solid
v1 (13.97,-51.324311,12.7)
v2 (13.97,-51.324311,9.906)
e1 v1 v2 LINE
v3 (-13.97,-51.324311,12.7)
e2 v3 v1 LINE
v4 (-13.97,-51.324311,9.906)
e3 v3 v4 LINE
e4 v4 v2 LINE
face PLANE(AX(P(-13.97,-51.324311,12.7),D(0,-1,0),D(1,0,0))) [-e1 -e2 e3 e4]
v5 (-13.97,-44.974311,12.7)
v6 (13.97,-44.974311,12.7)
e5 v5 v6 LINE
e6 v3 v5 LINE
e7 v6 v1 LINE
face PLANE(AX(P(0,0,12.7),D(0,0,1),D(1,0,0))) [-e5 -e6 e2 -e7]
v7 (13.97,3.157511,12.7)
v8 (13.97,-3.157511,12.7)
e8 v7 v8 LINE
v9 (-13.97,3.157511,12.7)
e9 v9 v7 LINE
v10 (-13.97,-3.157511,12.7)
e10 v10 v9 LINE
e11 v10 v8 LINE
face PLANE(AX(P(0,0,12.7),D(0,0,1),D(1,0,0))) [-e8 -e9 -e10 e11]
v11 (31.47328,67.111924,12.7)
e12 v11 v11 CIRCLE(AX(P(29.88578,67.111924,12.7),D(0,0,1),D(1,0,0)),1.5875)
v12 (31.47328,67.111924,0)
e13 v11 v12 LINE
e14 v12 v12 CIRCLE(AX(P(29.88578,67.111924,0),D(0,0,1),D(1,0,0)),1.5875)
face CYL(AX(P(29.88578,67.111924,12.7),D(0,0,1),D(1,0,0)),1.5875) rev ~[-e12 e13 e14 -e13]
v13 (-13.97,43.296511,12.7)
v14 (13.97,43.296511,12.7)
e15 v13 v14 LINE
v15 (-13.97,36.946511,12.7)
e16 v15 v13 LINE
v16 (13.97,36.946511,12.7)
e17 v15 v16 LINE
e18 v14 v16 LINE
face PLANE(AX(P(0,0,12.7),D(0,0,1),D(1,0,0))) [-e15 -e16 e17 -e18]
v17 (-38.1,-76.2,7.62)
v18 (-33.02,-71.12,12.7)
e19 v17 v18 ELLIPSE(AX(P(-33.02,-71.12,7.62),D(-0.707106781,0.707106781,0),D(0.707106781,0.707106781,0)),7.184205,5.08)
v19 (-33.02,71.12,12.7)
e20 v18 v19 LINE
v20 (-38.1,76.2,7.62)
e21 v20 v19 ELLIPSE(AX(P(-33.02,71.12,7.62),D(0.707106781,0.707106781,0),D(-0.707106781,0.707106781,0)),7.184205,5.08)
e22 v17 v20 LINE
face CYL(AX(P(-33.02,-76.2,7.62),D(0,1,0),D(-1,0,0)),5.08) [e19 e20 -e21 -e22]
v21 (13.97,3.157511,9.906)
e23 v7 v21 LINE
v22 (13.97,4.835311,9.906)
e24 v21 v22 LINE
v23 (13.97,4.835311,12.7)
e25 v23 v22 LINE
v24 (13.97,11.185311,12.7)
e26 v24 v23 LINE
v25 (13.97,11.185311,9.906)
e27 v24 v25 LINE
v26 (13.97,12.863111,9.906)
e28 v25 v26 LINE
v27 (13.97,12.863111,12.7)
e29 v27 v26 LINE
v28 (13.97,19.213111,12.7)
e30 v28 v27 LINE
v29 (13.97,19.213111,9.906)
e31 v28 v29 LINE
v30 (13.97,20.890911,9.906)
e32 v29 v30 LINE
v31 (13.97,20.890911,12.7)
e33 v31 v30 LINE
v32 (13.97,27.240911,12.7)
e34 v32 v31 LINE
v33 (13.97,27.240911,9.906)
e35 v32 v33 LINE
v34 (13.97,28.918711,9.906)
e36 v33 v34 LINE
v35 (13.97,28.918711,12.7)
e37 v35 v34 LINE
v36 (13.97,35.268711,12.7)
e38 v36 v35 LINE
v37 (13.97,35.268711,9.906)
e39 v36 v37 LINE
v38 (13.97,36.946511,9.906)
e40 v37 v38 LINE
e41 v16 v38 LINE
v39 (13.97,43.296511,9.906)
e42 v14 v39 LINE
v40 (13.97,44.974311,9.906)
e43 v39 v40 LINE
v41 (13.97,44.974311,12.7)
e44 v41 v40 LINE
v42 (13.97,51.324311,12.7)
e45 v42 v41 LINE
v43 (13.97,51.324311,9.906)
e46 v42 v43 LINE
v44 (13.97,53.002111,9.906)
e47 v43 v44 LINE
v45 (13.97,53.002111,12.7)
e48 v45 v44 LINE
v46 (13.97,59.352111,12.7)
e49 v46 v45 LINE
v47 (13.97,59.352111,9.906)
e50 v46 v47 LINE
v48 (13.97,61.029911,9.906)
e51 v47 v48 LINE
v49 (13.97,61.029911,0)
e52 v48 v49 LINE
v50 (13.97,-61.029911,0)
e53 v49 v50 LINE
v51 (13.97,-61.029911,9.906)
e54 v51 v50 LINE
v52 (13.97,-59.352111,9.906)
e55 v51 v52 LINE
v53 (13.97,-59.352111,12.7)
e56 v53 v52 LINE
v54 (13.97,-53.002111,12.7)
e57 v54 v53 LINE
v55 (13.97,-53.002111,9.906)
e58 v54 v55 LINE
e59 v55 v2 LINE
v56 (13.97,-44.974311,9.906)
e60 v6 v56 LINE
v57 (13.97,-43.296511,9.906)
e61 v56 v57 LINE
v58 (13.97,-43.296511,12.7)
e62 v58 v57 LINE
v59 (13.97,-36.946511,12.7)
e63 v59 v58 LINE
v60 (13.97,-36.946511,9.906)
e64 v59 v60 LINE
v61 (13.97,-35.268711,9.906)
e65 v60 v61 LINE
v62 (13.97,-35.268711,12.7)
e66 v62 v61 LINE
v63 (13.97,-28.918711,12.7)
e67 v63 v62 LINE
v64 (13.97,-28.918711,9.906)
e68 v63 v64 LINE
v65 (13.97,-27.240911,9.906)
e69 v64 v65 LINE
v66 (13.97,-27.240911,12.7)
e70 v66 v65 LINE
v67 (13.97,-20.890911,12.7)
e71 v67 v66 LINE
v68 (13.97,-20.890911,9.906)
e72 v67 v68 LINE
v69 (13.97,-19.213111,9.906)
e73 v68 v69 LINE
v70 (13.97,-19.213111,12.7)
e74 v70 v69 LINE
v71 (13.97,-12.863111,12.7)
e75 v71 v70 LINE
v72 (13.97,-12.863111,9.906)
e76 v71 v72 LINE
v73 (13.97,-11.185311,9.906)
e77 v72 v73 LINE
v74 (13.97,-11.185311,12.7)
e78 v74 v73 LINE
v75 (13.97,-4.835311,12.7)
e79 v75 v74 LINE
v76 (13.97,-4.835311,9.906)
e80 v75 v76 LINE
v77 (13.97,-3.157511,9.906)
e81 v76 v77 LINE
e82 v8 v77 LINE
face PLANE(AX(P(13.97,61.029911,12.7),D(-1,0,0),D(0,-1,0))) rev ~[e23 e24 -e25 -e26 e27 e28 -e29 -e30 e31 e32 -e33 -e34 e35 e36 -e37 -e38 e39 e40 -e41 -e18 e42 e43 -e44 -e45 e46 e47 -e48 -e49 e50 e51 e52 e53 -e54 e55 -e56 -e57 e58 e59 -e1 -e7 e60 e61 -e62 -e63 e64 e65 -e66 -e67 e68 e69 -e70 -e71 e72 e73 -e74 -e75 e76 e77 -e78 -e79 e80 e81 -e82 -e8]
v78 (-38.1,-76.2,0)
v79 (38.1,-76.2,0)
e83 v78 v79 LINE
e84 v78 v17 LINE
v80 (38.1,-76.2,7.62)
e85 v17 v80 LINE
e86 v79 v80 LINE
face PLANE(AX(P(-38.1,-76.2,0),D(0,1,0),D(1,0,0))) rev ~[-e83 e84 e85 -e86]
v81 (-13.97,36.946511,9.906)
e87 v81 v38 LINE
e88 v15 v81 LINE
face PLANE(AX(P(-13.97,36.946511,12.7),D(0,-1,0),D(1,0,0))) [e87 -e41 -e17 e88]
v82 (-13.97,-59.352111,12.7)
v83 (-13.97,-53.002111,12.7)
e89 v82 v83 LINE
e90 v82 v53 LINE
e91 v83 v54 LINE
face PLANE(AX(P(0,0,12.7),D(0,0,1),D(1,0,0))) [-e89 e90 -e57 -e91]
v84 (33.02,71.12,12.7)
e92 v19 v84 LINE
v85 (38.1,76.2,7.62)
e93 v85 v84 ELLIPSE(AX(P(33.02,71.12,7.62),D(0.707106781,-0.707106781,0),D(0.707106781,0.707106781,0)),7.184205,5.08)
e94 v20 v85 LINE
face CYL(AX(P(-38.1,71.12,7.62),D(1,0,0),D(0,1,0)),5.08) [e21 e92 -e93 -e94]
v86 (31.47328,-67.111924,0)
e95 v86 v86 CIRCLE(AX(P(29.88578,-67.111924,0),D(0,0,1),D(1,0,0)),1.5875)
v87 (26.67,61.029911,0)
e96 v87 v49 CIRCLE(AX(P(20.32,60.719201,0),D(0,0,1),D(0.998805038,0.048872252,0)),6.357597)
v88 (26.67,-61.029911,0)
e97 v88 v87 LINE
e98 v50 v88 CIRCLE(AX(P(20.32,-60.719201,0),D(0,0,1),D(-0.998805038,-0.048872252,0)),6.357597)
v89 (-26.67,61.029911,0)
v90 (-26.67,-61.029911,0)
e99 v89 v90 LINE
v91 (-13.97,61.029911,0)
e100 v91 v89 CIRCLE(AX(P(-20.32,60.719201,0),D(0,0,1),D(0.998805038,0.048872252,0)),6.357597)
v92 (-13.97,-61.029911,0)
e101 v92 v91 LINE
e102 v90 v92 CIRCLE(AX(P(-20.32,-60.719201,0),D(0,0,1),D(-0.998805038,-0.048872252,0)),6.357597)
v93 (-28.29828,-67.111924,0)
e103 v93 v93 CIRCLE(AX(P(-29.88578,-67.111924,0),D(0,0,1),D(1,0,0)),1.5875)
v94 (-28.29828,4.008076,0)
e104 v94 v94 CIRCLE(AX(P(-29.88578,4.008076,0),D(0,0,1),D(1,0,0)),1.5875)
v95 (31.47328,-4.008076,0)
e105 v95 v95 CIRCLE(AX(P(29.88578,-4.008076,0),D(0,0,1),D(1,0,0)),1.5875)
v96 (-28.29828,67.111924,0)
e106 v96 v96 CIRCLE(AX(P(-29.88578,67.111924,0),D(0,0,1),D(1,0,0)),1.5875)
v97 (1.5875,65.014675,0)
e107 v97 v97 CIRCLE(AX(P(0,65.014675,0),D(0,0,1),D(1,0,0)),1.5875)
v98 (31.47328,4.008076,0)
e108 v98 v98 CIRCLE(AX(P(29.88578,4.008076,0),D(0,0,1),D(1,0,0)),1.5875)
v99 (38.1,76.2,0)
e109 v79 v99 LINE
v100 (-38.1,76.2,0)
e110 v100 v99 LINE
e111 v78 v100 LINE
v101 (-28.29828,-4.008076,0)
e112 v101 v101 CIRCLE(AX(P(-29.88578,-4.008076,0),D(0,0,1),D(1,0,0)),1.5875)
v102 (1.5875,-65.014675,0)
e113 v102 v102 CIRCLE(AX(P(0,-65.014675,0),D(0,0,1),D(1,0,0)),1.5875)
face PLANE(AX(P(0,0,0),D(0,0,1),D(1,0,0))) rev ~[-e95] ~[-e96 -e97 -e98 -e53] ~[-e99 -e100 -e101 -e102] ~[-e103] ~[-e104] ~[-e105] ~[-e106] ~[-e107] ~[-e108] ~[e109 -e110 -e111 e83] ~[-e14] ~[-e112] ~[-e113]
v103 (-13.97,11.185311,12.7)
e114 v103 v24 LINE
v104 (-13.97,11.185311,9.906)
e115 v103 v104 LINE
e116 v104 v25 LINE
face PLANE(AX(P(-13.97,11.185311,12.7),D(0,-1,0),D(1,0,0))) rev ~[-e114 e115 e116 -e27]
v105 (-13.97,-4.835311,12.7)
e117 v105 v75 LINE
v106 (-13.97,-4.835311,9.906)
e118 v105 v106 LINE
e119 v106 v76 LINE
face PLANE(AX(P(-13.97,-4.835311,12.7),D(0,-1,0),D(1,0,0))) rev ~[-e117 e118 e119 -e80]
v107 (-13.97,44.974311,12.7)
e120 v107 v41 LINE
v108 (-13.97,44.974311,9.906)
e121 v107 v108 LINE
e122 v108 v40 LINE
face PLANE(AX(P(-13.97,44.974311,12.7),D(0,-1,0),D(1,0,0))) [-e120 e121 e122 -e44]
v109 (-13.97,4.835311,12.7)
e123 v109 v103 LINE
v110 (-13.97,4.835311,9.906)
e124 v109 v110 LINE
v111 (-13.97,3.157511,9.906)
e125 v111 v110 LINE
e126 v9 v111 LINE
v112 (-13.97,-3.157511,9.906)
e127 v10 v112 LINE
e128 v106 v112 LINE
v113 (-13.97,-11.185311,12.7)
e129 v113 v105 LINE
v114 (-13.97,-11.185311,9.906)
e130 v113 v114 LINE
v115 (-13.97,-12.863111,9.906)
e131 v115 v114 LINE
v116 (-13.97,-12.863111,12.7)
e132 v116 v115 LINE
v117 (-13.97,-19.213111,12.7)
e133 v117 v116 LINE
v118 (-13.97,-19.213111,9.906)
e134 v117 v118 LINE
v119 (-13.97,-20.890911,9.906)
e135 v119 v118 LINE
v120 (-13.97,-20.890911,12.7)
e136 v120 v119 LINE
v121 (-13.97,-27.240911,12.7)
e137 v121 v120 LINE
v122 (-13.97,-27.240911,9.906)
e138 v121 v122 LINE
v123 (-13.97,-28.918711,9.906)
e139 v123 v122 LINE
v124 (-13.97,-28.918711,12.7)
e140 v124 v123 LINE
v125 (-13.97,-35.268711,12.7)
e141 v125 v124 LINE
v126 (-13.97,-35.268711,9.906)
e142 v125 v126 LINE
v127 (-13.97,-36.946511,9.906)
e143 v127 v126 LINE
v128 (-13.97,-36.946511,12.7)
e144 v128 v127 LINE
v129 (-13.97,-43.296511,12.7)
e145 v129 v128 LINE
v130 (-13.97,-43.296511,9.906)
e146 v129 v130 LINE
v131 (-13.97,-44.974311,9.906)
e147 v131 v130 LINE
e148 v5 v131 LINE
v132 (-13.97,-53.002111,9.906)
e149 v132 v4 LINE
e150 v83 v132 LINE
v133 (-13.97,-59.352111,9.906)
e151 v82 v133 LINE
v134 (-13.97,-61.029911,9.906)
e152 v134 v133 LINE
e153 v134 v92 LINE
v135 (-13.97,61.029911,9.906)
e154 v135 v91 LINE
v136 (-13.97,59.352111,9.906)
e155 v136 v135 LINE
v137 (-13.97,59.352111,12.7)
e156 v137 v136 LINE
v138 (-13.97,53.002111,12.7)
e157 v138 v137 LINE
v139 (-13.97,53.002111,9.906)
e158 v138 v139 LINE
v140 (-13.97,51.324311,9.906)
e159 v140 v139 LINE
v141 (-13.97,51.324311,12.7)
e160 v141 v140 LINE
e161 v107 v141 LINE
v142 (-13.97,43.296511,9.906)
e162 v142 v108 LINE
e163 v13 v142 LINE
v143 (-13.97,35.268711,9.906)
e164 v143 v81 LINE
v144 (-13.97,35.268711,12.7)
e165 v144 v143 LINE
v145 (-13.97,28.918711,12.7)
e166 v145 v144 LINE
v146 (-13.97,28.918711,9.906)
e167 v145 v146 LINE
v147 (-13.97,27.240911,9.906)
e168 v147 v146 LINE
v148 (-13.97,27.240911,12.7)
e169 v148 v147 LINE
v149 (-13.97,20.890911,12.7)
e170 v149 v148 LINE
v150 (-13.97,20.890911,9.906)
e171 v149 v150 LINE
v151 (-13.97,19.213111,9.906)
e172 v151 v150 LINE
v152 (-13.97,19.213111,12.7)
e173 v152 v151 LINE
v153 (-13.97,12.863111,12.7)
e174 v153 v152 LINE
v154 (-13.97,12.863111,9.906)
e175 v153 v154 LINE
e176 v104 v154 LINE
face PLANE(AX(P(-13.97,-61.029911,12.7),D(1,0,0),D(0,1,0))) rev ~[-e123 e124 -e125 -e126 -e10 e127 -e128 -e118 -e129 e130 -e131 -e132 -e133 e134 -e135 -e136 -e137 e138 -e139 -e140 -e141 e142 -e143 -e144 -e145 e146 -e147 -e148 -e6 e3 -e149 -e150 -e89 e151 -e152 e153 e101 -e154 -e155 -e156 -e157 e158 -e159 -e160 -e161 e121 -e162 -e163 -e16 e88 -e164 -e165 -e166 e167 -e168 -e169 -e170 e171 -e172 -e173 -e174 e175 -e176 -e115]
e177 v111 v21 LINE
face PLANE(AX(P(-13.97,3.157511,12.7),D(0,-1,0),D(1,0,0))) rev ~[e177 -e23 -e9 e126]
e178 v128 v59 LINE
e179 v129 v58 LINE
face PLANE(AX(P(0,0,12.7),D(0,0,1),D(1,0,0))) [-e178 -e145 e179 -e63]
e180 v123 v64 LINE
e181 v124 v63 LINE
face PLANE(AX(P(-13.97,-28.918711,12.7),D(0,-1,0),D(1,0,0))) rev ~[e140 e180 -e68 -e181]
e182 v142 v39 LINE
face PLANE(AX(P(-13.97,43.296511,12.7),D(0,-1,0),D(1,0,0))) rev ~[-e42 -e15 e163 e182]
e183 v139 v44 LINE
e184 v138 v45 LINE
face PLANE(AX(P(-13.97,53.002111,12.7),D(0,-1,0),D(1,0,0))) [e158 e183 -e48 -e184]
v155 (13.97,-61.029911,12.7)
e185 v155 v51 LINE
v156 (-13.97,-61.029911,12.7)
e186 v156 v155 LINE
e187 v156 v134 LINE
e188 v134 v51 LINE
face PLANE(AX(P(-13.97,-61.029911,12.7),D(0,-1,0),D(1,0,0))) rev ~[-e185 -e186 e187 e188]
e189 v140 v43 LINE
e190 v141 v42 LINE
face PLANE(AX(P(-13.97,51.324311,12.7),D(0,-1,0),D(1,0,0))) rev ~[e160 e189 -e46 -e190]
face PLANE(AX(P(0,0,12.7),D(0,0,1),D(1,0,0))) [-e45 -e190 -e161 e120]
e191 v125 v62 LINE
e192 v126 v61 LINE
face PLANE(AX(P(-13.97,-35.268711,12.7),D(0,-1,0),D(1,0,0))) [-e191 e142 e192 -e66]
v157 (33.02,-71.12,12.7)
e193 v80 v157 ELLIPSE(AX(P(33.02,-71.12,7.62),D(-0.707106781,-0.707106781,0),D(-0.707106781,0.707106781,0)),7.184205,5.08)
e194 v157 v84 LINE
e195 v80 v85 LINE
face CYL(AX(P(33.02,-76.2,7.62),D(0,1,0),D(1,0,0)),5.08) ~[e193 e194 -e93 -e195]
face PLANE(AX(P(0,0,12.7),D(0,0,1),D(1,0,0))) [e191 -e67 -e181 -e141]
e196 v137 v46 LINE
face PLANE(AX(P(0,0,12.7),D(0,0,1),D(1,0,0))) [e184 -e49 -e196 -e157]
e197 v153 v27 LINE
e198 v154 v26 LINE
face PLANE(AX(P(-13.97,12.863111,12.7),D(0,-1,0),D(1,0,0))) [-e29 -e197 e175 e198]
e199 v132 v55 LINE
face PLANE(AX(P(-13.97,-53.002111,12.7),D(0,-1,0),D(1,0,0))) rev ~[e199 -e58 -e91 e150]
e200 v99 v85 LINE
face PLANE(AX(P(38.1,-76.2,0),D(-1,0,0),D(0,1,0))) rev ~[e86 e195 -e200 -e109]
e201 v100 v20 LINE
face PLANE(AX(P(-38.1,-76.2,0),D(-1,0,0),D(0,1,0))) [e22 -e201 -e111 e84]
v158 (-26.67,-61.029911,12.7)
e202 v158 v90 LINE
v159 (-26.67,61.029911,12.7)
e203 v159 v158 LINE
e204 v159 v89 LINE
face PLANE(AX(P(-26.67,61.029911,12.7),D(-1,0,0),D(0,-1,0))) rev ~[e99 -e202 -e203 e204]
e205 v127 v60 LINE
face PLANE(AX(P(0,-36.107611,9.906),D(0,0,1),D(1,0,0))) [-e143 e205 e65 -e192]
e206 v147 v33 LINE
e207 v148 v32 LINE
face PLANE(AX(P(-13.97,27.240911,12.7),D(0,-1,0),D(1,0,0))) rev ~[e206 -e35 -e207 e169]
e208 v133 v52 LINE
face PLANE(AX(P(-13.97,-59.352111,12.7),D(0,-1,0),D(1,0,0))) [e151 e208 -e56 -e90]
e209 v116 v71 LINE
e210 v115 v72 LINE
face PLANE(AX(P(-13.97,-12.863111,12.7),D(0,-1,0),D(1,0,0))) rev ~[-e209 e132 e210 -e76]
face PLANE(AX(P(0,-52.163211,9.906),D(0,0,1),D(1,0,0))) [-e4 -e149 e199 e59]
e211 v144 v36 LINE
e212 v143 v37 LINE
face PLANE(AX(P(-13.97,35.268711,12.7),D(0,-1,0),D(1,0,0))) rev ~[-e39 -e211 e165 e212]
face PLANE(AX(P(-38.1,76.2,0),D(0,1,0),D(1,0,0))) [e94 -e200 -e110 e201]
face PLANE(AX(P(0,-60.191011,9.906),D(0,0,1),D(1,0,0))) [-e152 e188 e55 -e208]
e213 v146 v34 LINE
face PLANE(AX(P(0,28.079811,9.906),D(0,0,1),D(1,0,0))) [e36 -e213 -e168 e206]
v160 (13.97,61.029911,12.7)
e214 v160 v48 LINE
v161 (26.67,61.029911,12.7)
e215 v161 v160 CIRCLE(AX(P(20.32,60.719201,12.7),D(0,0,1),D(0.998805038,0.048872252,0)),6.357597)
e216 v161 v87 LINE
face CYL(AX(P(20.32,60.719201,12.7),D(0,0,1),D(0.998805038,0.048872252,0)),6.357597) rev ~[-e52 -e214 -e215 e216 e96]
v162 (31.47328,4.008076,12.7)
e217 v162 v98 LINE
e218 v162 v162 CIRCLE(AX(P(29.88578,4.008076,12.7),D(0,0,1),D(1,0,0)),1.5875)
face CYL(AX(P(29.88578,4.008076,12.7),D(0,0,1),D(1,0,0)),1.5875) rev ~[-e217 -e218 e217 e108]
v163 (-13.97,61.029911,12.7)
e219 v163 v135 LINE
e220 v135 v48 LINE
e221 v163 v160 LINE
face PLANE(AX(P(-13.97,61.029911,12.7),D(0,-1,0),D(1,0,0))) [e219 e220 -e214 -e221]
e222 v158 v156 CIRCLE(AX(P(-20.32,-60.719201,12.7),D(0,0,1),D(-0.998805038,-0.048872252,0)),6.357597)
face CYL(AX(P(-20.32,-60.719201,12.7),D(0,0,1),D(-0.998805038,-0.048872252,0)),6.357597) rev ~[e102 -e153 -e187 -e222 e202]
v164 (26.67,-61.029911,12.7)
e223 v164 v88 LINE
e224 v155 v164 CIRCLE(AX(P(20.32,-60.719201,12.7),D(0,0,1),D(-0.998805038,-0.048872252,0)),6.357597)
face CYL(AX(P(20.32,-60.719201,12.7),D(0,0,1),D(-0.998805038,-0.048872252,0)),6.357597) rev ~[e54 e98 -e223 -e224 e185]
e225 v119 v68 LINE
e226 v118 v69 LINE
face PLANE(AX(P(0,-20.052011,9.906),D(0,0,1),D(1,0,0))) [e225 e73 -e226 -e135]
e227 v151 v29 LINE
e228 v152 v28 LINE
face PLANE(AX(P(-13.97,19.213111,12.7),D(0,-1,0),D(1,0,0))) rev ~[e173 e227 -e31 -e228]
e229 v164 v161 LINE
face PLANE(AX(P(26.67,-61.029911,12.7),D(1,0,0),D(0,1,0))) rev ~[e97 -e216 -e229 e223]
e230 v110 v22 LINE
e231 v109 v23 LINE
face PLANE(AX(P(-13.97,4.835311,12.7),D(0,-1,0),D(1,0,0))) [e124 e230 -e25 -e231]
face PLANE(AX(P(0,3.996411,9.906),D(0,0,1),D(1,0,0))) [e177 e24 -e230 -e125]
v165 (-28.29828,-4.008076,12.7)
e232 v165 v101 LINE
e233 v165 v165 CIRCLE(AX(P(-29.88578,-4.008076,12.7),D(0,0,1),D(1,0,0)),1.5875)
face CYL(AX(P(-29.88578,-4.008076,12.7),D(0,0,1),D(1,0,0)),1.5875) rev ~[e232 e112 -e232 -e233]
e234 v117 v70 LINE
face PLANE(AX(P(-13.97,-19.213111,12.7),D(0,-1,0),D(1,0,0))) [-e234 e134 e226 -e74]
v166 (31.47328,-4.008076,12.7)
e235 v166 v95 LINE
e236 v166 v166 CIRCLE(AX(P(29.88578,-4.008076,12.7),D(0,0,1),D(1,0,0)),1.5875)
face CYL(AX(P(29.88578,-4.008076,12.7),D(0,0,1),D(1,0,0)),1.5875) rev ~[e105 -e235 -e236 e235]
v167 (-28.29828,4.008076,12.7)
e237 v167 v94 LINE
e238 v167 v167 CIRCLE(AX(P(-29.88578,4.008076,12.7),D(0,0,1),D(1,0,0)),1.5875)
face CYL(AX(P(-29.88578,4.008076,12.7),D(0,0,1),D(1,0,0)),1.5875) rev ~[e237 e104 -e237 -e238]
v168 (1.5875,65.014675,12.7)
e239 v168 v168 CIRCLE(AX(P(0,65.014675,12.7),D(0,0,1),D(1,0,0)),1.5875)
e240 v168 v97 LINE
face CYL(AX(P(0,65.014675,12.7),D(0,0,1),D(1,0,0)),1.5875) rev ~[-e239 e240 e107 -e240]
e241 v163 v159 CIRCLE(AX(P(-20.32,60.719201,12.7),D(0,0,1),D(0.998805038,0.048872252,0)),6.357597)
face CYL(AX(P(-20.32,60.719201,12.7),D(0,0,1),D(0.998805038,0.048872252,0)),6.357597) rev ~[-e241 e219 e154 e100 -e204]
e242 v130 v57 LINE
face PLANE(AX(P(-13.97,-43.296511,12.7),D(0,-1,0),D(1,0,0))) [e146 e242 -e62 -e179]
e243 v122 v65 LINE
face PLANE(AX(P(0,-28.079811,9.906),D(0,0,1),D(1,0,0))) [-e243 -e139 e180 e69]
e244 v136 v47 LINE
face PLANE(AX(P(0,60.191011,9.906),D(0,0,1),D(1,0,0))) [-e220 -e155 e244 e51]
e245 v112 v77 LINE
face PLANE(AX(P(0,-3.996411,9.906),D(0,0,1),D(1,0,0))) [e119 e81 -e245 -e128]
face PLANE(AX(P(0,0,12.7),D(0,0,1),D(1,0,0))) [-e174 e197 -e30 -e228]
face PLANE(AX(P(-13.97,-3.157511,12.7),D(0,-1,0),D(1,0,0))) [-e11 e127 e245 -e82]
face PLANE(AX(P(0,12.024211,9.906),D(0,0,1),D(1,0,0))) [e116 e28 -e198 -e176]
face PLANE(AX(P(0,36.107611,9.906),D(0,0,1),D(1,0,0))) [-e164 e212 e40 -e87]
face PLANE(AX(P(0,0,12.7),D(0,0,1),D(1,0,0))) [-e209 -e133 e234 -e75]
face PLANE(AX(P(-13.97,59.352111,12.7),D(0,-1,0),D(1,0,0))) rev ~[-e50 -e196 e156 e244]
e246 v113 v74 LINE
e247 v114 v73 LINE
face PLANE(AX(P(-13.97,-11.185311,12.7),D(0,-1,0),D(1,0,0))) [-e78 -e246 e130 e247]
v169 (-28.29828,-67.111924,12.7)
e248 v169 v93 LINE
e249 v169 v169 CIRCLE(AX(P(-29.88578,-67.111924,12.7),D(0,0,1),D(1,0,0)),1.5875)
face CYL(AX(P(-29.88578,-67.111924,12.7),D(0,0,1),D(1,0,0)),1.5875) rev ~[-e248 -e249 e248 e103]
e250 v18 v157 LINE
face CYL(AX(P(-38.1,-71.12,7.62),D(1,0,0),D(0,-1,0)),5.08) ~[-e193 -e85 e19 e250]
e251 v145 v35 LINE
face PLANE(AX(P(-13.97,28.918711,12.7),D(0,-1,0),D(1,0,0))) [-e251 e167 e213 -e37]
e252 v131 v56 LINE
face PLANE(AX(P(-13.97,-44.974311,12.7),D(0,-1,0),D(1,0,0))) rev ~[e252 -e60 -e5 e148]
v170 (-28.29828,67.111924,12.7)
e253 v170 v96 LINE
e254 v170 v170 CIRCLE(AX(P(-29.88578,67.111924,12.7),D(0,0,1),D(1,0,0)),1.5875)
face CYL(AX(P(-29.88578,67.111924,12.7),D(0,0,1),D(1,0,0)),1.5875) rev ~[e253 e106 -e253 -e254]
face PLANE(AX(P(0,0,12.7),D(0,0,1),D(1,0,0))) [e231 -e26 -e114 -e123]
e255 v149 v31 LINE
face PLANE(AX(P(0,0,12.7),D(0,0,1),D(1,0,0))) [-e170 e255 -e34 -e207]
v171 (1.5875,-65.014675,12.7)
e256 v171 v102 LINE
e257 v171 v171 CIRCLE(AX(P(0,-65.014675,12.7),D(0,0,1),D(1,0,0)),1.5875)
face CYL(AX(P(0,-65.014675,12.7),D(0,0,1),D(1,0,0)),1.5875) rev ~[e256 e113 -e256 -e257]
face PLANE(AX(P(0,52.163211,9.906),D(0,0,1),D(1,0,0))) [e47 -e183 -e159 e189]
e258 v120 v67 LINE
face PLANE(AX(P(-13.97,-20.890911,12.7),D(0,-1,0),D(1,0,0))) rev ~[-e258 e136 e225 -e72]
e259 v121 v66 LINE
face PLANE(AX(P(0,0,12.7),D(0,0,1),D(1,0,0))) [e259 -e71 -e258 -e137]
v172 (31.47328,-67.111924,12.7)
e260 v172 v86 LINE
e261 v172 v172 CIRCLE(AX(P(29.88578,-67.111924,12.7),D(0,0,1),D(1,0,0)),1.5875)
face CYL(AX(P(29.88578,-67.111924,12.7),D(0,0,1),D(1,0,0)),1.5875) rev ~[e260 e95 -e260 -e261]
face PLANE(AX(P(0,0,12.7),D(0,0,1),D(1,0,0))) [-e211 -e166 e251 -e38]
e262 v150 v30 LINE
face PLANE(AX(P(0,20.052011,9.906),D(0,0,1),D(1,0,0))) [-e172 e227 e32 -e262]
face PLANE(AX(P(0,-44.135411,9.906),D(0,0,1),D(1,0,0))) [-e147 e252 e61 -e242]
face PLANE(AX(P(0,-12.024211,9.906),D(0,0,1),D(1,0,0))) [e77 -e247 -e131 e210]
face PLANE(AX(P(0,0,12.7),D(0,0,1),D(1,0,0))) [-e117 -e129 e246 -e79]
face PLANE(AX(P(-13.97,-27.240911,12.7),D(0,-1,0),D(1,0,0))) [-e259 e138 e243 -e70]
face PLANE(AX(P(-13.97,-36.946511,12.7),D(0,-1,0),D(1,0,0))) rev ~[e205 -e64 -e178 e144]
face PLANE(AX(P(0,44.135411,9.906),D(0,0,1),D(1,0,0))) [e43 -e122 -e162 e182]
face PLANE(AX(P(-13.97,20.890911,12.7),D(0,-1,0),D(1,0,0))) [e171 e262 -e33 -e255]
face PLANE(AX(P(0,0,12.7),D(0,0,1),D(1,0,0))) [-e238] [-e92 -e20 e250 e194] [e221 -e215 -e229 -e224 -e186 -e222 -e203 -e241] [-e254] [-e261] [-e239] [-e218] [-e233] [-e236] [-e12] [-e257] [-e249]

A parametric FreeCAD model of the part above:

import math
import FreeCAD as App
import Part
import Sketcher
Q = App.Units.Quantity


def edges_at(feature, points):
    """Names of the edges that pass closest to the given points."""
    edges = feature.Shape.Edges
    near = lambda p: min(range(len(edges)), key=lambda i: edges[i].distToShape(Part.Vertex(*p))[0])
    return sorted({f"Edge{near(p) + 1}" for p in points})

doc = App.newDocument("Part")
body = doc.addObject("PartDesign::Body", "Body")

# Sketch on XY plane
sketch1 = doc.addObject("Sketcher::SketchObject", "Sketch")
body.addObject(sketch1)
sketch1.AttachmentSupport = (doc.XY_Plane, [""])
sketch1.MapMode = "FlatFace"
sketch1.addGeometry(Part.LineSegment(App.Vector(-38, 76, 0), App.Vector(-38, -76, 0)), False)
sketch1.addGeometry(Part.LineSegment(App.Vector(-38, -76, 0), App.Vector(38, -76, 0)), False)
sketch1.addGeometry(Part.LineSegment(App.Vector(38, -76, 0), App.Vector(38, 76, 0)), False)
sketch1.addGeometry(Part.LineSegment(App.Vector(38, 76, 0), App.Vector(-38, 76, 0)), False)
sketch1.addConstraint(Sketcher.Constraint("Coincident", 0, 2, 1, 1))
sketch1.addConstraint(Sketcher.Constraint("Coincident", 1, 2, 2, 1))
sketch1.addConstraint(Sketcher.Constraint("Coincident", 2, 2, 3, 1))
sketch1.addConstraint(Sketcher.Constraint("Coincident", 3, 2, 0, 1))
sketch1.addConstraint(Sketcher.Constraint("Vertical", 0))
sketch1.addConstraint(Sketcher.Constraint("Horizontal", 1))
sketch1.addConstraint(Sketcher.Constraint("Vertical", 2))
sketch1.addConstraint(Sketcher.Constraint("Horizontal", 3))
sketch1.addConstraint(Sketcher.Constraint("Symmetric", 0, 2, 2, 2, -1, 1))
sketch1.addConstraint(Sketcher.Constraint("DistanceX", 1, 1, 1, 2, Q("3 in")))
sketch1.addConstraint(Sketcher.Constraint("DistanceY", 0, 2, 0, 1, Q("6 in")))
pad1 = doc.addObject("PartDesign::Pad", "Pad")
body.addObject(pad1)
pad1.Profile = sketch1
pad1.Length = Q("0.5 in")
doc.recompute()

fillet = doc.addObject("PartDesign::Fillet", "Fillet")
body.addObject(fillet)
fillet.Base = (pad1, edges_at(pad1, [
    (-38.1, 0, 12.7),
    (0, 76.2, 12.7),
    (38.1, 0, 12.7),
    (0, -76.2, 12.7),
]))
fillet.Radius = Q("0.2 in")

# Sketch on XY plane
sketch2 = doc.addObject("Sketcher::SketchObject", "Sketch001")
body.addObject(sketch2)
sketch2.AttachmentSupport = (doc.XY_Plane, [""])
sketch2.MapMode = "FlatFace"
sketch2.AttachmentOffset = App.Placement(App.Vector(0, 0, 0.5 * 25.4), App.Rotation())
sketch2.addGeometry(Part.LineSegment(App.Vector(-14, -61, 0), App.Vector(-14, 61, 0)), False)
sketch2.addGeometry(Part.ArcOfCircle(Part.Circle(App.Vector(-20, 61, 0), App.Vector(0, 0, 1), 6), math.radians(3), math.radians(177)), False)
sketch2.addGeometry(Part.LineSegment(App.Vector(-27, 61, 0), App.Vector(-27, -61, 0)), False)
sketch2.addGeometry(Part.ArcOfCircle(Part.Circle(App.Vector(-20, -61, 0), App.Vector(0, 0, 1), 6), math.radians(-177), math.radians(-3)), False)
sketch2.addGeometry(Part.ArcOfCircle(Part.Circle(App.Vector(20, 61, 0), App.Vector(0, 0, 1), 6), math.radians(3), math.radians(177)), False)
sketch2.addGeometry(Part.LineSegment(App.Vector(14, 61, 0), App.Vector(14, -61, 0)), False)
sketch2.addGeometry(Part.ArcOfCircle(Part.Circle(App.Vector(20, -61, 0), App.Vector(0, 0, 1), 6), math.radians(-177), math.radians(-3)), False)
sketch2.addGeometry(Part.LineSegment(App.Vector(27, -61, 0), App.Vector(27, 61, 0)), False)
sketch2.addConstraint(Sketcher.Constraint("Coincident", 0, 2, 1, 1))
sketch2.addConstraint(Sketcher.Constraint("Coincident", 1, 2, 2, 1))
sketch2.addConstraint(Sketcher.Constraint("Coincident", 2, 2, 3, 1))
sketch2.addConstraint(Sketcher.Constraint("Coincident", 3, 2, 0, 1))
sketch2.addConstraint(Sketcher.Constraint("Coincident", 4, 2, 5, 1))
sketch2.addConstraint(Sketcher.Constraint("Coincident", 5, 2, 6, 1))
sketch2.addConstraint(Sketcher.Constraint("Coincident", 6, 2, 7, 1))
sketch2.addConstraint(Sketcher.Constraint("Coincident", 7, 2, 4, 1))
sketch2.addConstraint(Sketcher.Constraint("Vertical", 0))
sketch2.addConstraint(Sketcher.Constraint("Vertical", 2))
sketch2.addConstraint(Sketcher.Constraint("Vertical", 5))
sketch2.addConstraint(Sketcher.Constraint("Vertical", 7))
sketch2.addConstraint(Sketcher.Constraint("Equal", 1, 3))
sketch2.addConstraint(Sketcher.Constraint("Equal", 3, 4))
sketch2.addConstraint(Sketcher.Constraint("Equal", 4, 6))
sketch2.addConstraint(Sketcher.Constraint("Symmetric", 3, 3, 4, 3, -1, 1))
sketch2.addConstraint(Sketcher.Constraint("Symmetric", 1, 3, 6, 3, -1, 1))
sketch2.addConstraint(Sketcher.Constraint("Symmetric", 1, 3, 4, 3, -2))
sketch2.addConstraint(Sketcher.Constraint("Horizontal", 0, 2, 1, 2))
sketch2.addConstraint(Sketcher.Constraint("Horizontal", 1, 2, 4, 2))
sketch2.addConstraint(Sketcher.Constraint("Horizontal", 5, 2, 6, 2))
sketch2.addConstraint(Sketcher.Constraint("DistanceX", 1, 3, -1, 1, Q("0.8 in")))
sketch2.addConstraint(Sketcher.Constraint("DistanceX", 1, 2, 0, 2, Q("0.5 in")))
sketch2.addConstraint(Sketcher.Constraint("Radius", 1, Q("6.357597 mm")))
sketch2.addConstraint(Sketcher.Constraint("DistanceY", 0, 1, 0, 2, Q("122.059822 mm")))
pocket1 = doc.addObject("PartDesign::Pocket", "Pocket")
body.addObject(pocket1)
pocket1.Profile = sketch2
pocket1.Length = Q("1 in")

# Sketch on XY plane
sketch3 = doc.addObject("Sketcher::SketchObject", "Sketch002")
body.addObject(sketch3)
sketch3.AttachmentSupport = (doc.XY_Plane, [""])
sketch3.MapMode = "FlatFace"
sketch3.AttachmentOffset = App.Placement(App.Vector(0, 0, 0.5 * 25.4), App.Rotation())
sketch3.addGeometry(Part.Circle(App.Vector(0, 65, 0), App.Vector(0, 0, 1), 1.6), False)
sketch3.addGeometry(Part.Circle(App.Vector(0, -65, 0), App.Vector(0, 0, 1), 1.6), False)
sketch3.addGeometry(Part.Circle(App.Vector(-29.9, 67.1, 0), App.Vector(0, 0, 1), 1.6), False)
sketch3.addGeometry(Part.Circle(App.Vector(29.9, 67.1, 0), App.Vector(0, 0, 1), 1.6), False)
sketch3.addGeometry(Part.Circle(App.Vector(29.9, -67.1, 0), App.Vector(0, 0, 1), 1.6), False)
sketch3.addGeometry(Part.Circle(App.Vector(-29.9, -67.1, 0), App.Vector(0, 0, 1), 1.6), False)
sketch3.addGeometry(Part.Circle(App.Vector(-29.9, 4, 0), App.Vector(0, 0, 1), 1.6), False)
sketch3.addGeometry(Part.Circle(App.Vector(29.9, 4, 0), App.Vector(0, 0, 1), 1.6), False)
sketch3.addGeometry(Part.Circle(App.Vector(-29.9, -4, 0), App.Vector(0, 0, 1), 1.6), False)
sketch3.addGeometry(Part.Circle(App.Vector(29.9, -4, 0), App.Vector(0, 0, 1), 1.6), False)
sketch3.addConstraint(Sketcher.Constraint("Equal", 0, 1))
sketch3.addConstraint(Sketcher.Constraint("Equal", 1, 2))
sketch3.addConstraint(Sketcher.Constraint("Equal", 2, 3))
sketch3.addConstraint(Sketcher.Constraint("Equal", 3, 4))
sketch3.addConstraint(Sketcher.Constraint("Equal", 4, 5))
sketch3.addConstraint(Sketcher.Constraint("Equal", 5, 6))
sketch3.addConstraint(Sketcher.Constraint("Equal", 6, 7))
sketch3.addConstraint(Sketcher.Constraint("Equal", 7, 8))
sketch3.addConstraint(Sketcher.Constraint("Equal", 8, 9))
sketch3.addConstraint(Sketcher.Constraint("Symmetric", 0, 3, 1, 3, -1, 1))
sketch3.addConstraint(Sketcher.Constraint("Symmetric", 2, 3, 4, 3, -1, 1))
sketch3.addConstraint(Sketcher.Constraint("Symmetric", 3, 3, 5, 3, -1, 1))
sketch3.addConstraint(Sketcher.Constraint("Symmetric", 7, 3, 8, 3, -1, 1))
sketch3.addConstraint(Sketcher.Constraint("Symmetric", 6, 3, 9, 3, -1, 1))
sketch3.addConstraint(Sketcher.Constraint("Symmetric", 2, 3, 3, 3, -2))
sketch3.addConstraint(Sketcher.Constraint("Symmetric", 6, 3, 7, 3, -2))
sketch3.addConstraint(Sketcher.Constraint("PointOnObject", 0, 3, -2))
sketch3.addConstraint(Sketcher.Constraint("Vertical", 5, 3, 6, 3))
sketch3.addConstraint(Sketcher.Constraint("Diameter", 0, Q("0.125 in")))
sketch3.addConstraint(Sketcher.Constraint("DistanceY", 5, 3, 6, 3, Q("2.8 in")))
sketch3.addConstraint(Sketcher.Constraint("DistanceY", 1, 3, 2, 3, Q("132.126599 mm")))
sketch3.addConstraint(Sketcher.Constraint("DistanceX", 2, 3, -1, 1, Q("29.88578 mm")))
sketch3.addConstraint(Sketcher.Constraint("DistanceY", 1, 3, 0, 3, Q("130.02935 mm")))
pocket2 = doc.addObject("PartDesign::Pocket", "Pocket001")
body.addObject(pocket2)
pocket2.Profile = sketch3
pocket2.Length = Q("1 in")

# Sketch on XY plane
sketch4 = doc.addObject("Sketcher::SketchObject", "Sketch003")
body.addObject(sketch4)
sketch4.AttachmentSupport = (doc.XY_Plane, [""])
sketch4.MapMode = "FlatFace"
sketch4.AttachmentOffset = App.Placement(App.Vector(0, 0, 0.5 * 25.4), App.Rotation())
sketch4.addGeometry(Part.LineSegment(App.Vector(-14, 61, 0), App.Vector(-14, 59.4, 0)), False)
sketch4.addGeometry(Part.LineSegment(App.Vector(-14, 59.4, 0), App.Vector(14, 59.4, 0)), False)
sketch4.addGeometry(Part.LineSegment(App.Vector(14, 59.4, 0), App.Vector(14, 61, 0)), False)
sketch4.addGeometry(Part.LineSegment(App.Vector(14, 61, 0), App.Vector(-14, 61, 0)), False)
sketch4.addGeometry(Part.LineSegment(App.Vector(-14, 53, 0), App.Vector(-14, 51.3, 0)), False)
sketch4.addGeometry(Part.LineSegment(App.Vector(-14, 51.3, 0), App.Vector(14, 51.3, 0)), False)
sketch4.addGeometry(Part.LineSegment(App.Vector(14, 51.3, 0), App.Vector(14, 53, 0)), False)
sketch4.addGeometry(Part.LineSegment(App.Vector(14, 53, 0), App.Vector(-14, 53, 0)), False)
sketch4.addGeometry(Part.LineSegment(App.Vector(-14, 45, 0), App.Vector(-14, 43.3, 0)), False)
sketch4.addGeometry(Part.LineSegment(App.Vector(-14, 43.3, 0), App.Vector(14, 43.3, 0)), False)
sketch4.addGeometry(Part.LineSegment(App.Vector(14, 43.3, 0), App.Vector(14, 45, 0)), False)
sketch4.addGeometry(Part.LineSegment(App.Vector(14, 45, 0), App.Vector(-14, 45, 0)), False)
sketch4.addGeometry(Part.LineSegment(App.Vector(-14, 36.9, 0), App.Vector(-14, 35.3, 0)), False)
sketch4.addGeometry(Part.LineSegment(App.Vector(-14, 35.3, 0), App.Vector(14, 35.3, 0)), False)
sketch4.addGeometry(Part.LineSegment(App.Vector(14, 35.3, 0), App.Vector(14, 36.9, 0)), False)
sketch4.addGeometry(Part.LineSegment(App.Vector(14, 36.9, 0), App.Vector(-14, 36.9, 0)), False)
sketch4.addGeometry(Part.LineSegment(App.Vector(-14, 28.9, 0), App.Vector(-14, 27.2, 0)), False)
sketch4.addGeometry(Part.LineSegment(App.Vector(-14, 27.2, 0), App.Vector(14, 27.2, 0)), False)
sketch4.addGeometry(Part.LineSegment(App.Vector(14, 27.2, 0), App.Vector(14, 28.9, 0)), False)
sketch4.addGeometry(Part.LineSegment(App.Vector(14, 28.9, 0), App.Vector(-14, 28.9, 0)), False)
sketch4.addGeometry(Part.LineSegment(App.Vector(-14, 20.9, 0), App.Vector(-14, 19.2, 0)), False)
sketch4.addGeometry(Part.LineSegment(App.Vector(-14, 19.2, 0), App.Vector(14, 19.2, 0)), False)
sketch4.addGeometry(Part.LineSegment(App.Vector(14, 19.2, 0), App.Vector(14, 20.9, 0)), False)
sketch4.addGeometry(Part.LineSegment(App.Vector(14, 20.9, 0), App.Vector(-14, 20.9, 0)), False)
sketch4.addGeometry(Part.LineSegment(App.Vector(-14, 12.9, 0), App.Vector(-14, 11.2, 0)), False)
sketch4.addGeometry(Part.LineSegment(App.Vector(-14, 11.2, 0), App.Vector(14, 11.2, 0)), False)
sketch4.addGeometry(Part.LineSegment(App.Vector(14, 11.2, 0), App.Vector(14, 12.9, 0)), False)
sketch4.addGeometry(Part.LineSegment(App.Vector(14, 12.9, 0), App.Vector(-14, 12.9, 0)), False)
sketch4.addGeometry(Part.LineSegment(App.Vector(-14, 4.8, 0), App.Vector(-14, 3.2, 0)), False)
sketch4.addGeometry(Part.LineSegment(App.Vector(-14, 3.2, 0), App.Vector(14, 3.2, 0)), False)
sketch4.addGeometry(Part.LineSegment(App.Vector(14, 3.2, 0), App.Vector(14, 4.8, 0)), False)
sketch4.addGeometry(Part.LineSegment(App.Vector(14, 4.8, 0), App.Vector(-14, 4.8, 0)), False)
sketch4.addGeometry(Part.LineSegment(App.Vector(-14, -3.2, 0), App.Vector(-14, -4.8, 0)), False)
sketch4.addGeometry(Part.LineSegment(App.Vector(-14, -4.8, 0), App.Vector(14, -4.8, 0)), False)
sketch4.addGeometry(Part.LineSegment(App.Vector(14, -4.8, 0), App.Vector(14, -3.2, 0)), False)
sketch4.addGeometry(Part.LineSegment(App.Vector(14, -3.2, 0), App.Vector(-14, -3.2, 0)), False)
sketch4.addGeometry(Part.LineSegment(App.Vector(-14, -11.2, 0), App.Vector(-14, -12.9, 0)), False)
sketch4.addGeometry(Part.LineSegment(App.Vector(-14, -12.9, 0), App.Vector(14, -12.9, 0)), False)
sketch4.addGeometry(Part.LineSegment(App.Vector(14, -12.9, 0), App.Vector(14, -11.2, 0)), False)
sketch4.addGeometry(Part.LineSegment(App.Vector(14, -11.2, 0), App.Vector(-14, -11.2, 0)), False)
sketch4.addGeometry(Part.LineSegment(App.Vector(-14, -19.2, 0), App.Vector(-14, -20.9, 0)), False)
sketch4.addGeometry(Part.LineSegment(App.Vector(-14, -20.9, 0), App.Vector(14, -20.9, 0)), False)
sketch4.addGeometry(Part.LineSegment(App.Vector(14, -20.9, 0), App.Vector(14, -19.2, 0)), False)
sketch4.addGeometry(Part.LineSegment(App.Vector(14, -19.2, 0), App.Vector(-14, -19.2, 0)), False)
sketch4.addGeometry(Part.LineSegment(App.Vector(-14, -27.2, 0), App.Vector(-14, -28.9, 0)), False)
sketch4.addGeometry(Part.LineSegment(App.Vector(-14, -28.9, 0), App.Vector(14, -28.9, 0)), False)
sketch4.addGeometry(Part.LineSegment(App.Vector(14, -28.9, 0), App.Vector(14, -27.2, 0)), False)
sketch4.addGeometry(Part.LineSegment(App.Vector(14, -27.2, 0), App.Vector(-14, -27.2, 0)), False)
sketch4.addGeometry(Part.LineSegment(App.Vector(-14, -35.3, 0), App.Vector(-14, -36.9, 0)), False)
sketch4.addGeometry(Part.LineSegment(App.Vector(-14, -36.9, 0), App.Vector(14, -36.9, 0)), False)
sketch4.addGeometry(Part.LineSegment(App.Vector(14, -36.9, 0), App.Vector(14, -35.3, 0)), False)
sketch4.addGeometry(Part.LineSegment(App.Vector(14, -35.3, 0), App.Vector(-14, -35.3, 0)), False)
sketch4.addGeometry(Part.LineSegment(App.Vector(-14, -43.3, 0), App.Vector(-14, -45, 0)), False)
sketch4.addGeometry(Part.LineSegment(App.Vector(-14, -45, 0), App.Vector(14, -45, 0)), False)
sketch4.addGeometry(Part.LineSegment(App.Vector(14, -45, 0), App.Vector(14, -43.3, 0)), False)
sketch4.addGeometry(Part.LineSegment(App.Vector(14, -43.3, 0), App.Vector(-14, -43.3, 0)), False)
sketch4.addGeometry(Part.LineSegment(App.Vector(-14, -51.3, 0), App.Vector(-14, -53, 0)), False)
sketch4.addGeometry(Part.LineSegment(App.Vector(-14, -53, 0), App.Vector(14, -53, 0)), False)
sketch4.addGeometry(Part.LineSegment(App.Vector(14, -53, 0), App.Vector(14, -51.3, 0)), False)
sketch4.addGeometry(Part.LineSegment(App.Vector(14, -51.3, 0), App.Vector(-14, -51.3, 0)), False)
sketch4.addGeometry(Part.LineSegment(App.Vector(-14, -59.4, 0), App.Vector(-14, -61, 0)), False)
sketch4.addGeometry(Part.LineSegment(App.Vector(-14, -61, 0), App.Vector(14, -61, 0)), False)
sketch4.addGeometry(Part.LineSegment(App.Vector(14, -61, 0), App.Vector(14, -59.4, 0)), False)
sketch4.addGeometry(Part.LineSegment(App.Vector(14, -59.4, 0), App.Vector(-14, -59.4, 0)), False)
sketch4.addConstraint(Sketcher.Constraint("Coincident", 0, 2, 1, 1))
sketch4.addConstraint(Sketcher.Constraint("Coincident", 1, 2, 2, 1))
sketch4.addConstraint(Sketcher.Constraint("Coincident", 2, 2, 3, 1))
sketch4.addConstraint(Sketcher.Constraint("Coincident", 3, 2, 0, 1))
sketch4.addConstraint(Sketcher.Constraint("Coincident", 4, 2, 5, 1))
sketch4.addConstraint(Sketcher.Constraint("Coincident", 5, 2, 6, 1))
sketch4.addConstraint(Sketcher.Constraint("Coincident", 6, 2, 7, 1))
sketch4.addConstraint(Sketcher.Constraint("Coincident", 7, 2, 4, 1))
sketch4.addConstraint(Sketcher.Constraint("Coincident", 8, 2, 9, 1))
sketch4.addConstraint(Sketcher.Constraint("Coincident", 9, 2, 10, 1))
sketch4.addConstraint(Sketcher.Constraint("Coincident", 10, 2, 11, 1))
sketch4.addConstraint(Sketcher.Constraint("Coincident", 11, 2, 8, 1))
sketch4.addConstraint(Sketcher.Constraint("Coincident", 12, 2, 13, 1))
sketch4.addConstraint(Sketcher.Constraint("Coincident", 13, 2, 14, 1))
sketch4.addConstraint(Sketcher.Constraint("Coincident", 14, 2, 15, 1))
sketch4.addConstraint(Sketcher.Constraint("Coincident", 15, 2, 12, 1))
sketch4.addConstraint(Sketcher.Constraint("Coincident", 16, 2, 17, 1))
sketch4.addConstraint(Sketcher.Constraint("Coincident", 17, 2, 18, 1))
sketch4.addConstraint(Sketcher.Constraint("Coincident", 18, 2, 19, 1))
sketch4.addConstraint(Sketcher.Constraint("Coincident", 19, 2, 16, 1))
sketch4.addConstraint(Sketcher.Constraint("Coincident", 20, 2, 21, 1))
sketch4.addConstraint(Sketcher.Constraint("Coincident", 21, 2, 22, 1))
sketch4.addConstraint(Sketcher.Constraint("Coincident", 22, 2, 23, 1))
sketch4.addConstraint(Sketcher.Constraint("Coincident", 23, 2, 20, 1))
sketch4.addConstraint(Sketcher.Constraint("Coincident", 24, 2, 25, 1))
sketch4.addConstraint(Sketcher.Constraint("Coincident", 25, 2, 26, 1))
sketch4.addConstraint(Sketcher.Constraint("Coincident", 26, 2, 27, 1))
sketch4.addConstraint(Sketcher.Constraint("Coincident", 27, 2, 24, 1))
sketch4.addConstraint(Sketcher.Constraint("Coincident", 28, 2, 29, 1))
sketch4.addConstraint(Sketcher.Constraint("Coincident", 29, 2, 30, 1))
sketch4.addConstraint(Sketcher.Constraint("Coincident", 30, 2, 31, 1))
sketch4.addConstraint(Sketcher.Constraint("Coincident", 31, 2, 28, 1))
sketch4.addConstraint(Sketcher.Constraint("Coincident", 32, 2, 33, 1))
sketch4.addConstraint(Sketcher.Constraint("Coincident", 33, 2, 34, 1))
sketch4.addConstraint(Sketcher.Constraint("Coincident", 34, 2, 35, 1))
sketch4.addConstraint(Sketcher.Constraint("Coincident", 35, 2, 32, 1))
sketch4.addConstraint(Sketcher.Constraint("Coincident", 36, 2, 37, 1))
sketch4.addConstraint(Sketcher.Constraint("Coincident", 37, 2, 38, 1))
sketch4.addConstraint(Sketcher.Constraint("Coincident", 38, 2, 39, 1))
sketch4.addConstraint(Sketcher.Constraint("Coincident", 39, 2, 36, 1))
sketch4.addConstraint(Sketcher.Constraint("Coincident", 40, 2, 41, 1))
sketch4.addConstraint(Sketcher.Constraint("Coincident", 41, 2, 42, 1))
sketch4.addConstraint(Sketcher.Constraint("Coincident", 42, 2, 43, 1))
sketch4.addConstraint(Sketcher.Constraint("Coincident", 43, 2, 40, 1))
sketch4.addConstraint(Sketcher.Constraint("Coincident", 44, 2, 45, 1))
sketch4.addConstraint(Sketcher.Constraint("Coincident", 45, 2, 46, 1))
sketch4.addConstraint(Sketcher.Constraint("Coincident", 46, 2, 47, 1))
sketch4.addConstraint(Sketcher.Constraint("Coincident", 47, 2, 44, 1))
sketch4.addConstraint(Sketcher.Constraint("Coincident", 48, 2, 49, 1))
sketch4.addConstraint(Sketcher.Constraint("Coincident", 49, 2, 50, 1))
sketch4.addConstraint(Sketcher.Constraint("Coincident", 50, 2, 51, 1))
sketch4.addConstraint(Sketcher.Constraint("Coincident", 51, 2, 48, 1))
sketch4.addConstraint(Sketcher.Constraint("Coincident", 52, 2, 53, 1))
sketch4.addConstraint(Sketcher.Constraint("Coincident", 53, 2, 54, 1))
sketch4.addConstraint(Sketcher.Constraint("Coincident", 54, 2, 55, 1))
sketch4.addConstraint(Sketcher.Constraint("Coincident", 55, 2, 52, 1))
sketch4.addConstraint(Sketcher.Constraint("Coincident", 56, 2, 57, 1))
sketch4.addConstraint(Sketcher.Constraint("Coincident", 57, 2, 58, 1))
sketch4.addConstraint(Sketcher.Constraint("Coincident", 58, 2, 59, 1))
sketch4.addConstraint(Sketcher.Constraint("Coincident", 59, 2, 56, 1))
sketch4.addConstraint(Sketcher.Constraint("Coincident", 60, 2, 61, 1))
sketch4.addConstraint(Sketcher.Constraint("Coincident", 61, 2, 62, 1))
sketch4.addConstraint(Sketcher.Constraint("Coincident", 62, 2, 63, 1))
sketch4.addConstraint(Sketcher.Constraint("Coincident", 63, 2, 60, 1))
sketch4.addConstraint(Sketcher.Constraint("Vertical", 0))
sketch4.addConstraint(Sketcher.Constraint("Horizontal", 1))
sketch4.addConstraint(Sketcher.Constraint("Vertical", 2))
sketch4.addConstraint(Sketcher.Constraint("Horizontal", 3))
sketch4.addConstraint(Sketcher.Constraint("Vertical", 4))
sketch4.addConstraint(Sketcher.Constraint("Horizontal", 5))
sketch4.addConstraint(Sketcher.Constraint("Vertical", 6))
sketch4.addConstraint(Sketcher.Constraint("Horizontal", 7))
sketch4.addConstraint(Sketcher.Constraint("Vertical", 8))
sketch4.addConstraint(Sketcher.Constraint("Horizontal", 9))
sketch4.addConstraint(Sketcher.Constraint("Vertical", 10))
sketch4.addConstraint(Sketcher.Constraint("Horizontal", 11))
sketch4.addConstraint(Sketcher.Constraint("Vertical", 12))
sketch4.addConstraint(Sketcher.Constraint("Horizontal", 13))
sketch4.addConstraint(Sketcher.Constraint("Vertical", 14))
sketch4.addConstraint(Sketcher.Constraint("Horizontal", 15))
sketch4.addConstraint(Sketcher.Constraint("Vertical", 16))
sketch4.addConstraint(Sketcher.Constraint("Horizontal", 17))
sketch4.addConstraint(Sketcher.Constraint("Vertical", 18))
sketch4.addConstraint(Sketcher.Constraint("Horizontal", 19))
sketch4.addConstraint(Sketcher.Constraint("Vertical", 20))
sketch4.addConstraint(Sketcher.Constraint("Horizontal", 21))
sketch4.addConstraint(Sketcher.Constraint("Vertical", 22))
sketch4.addConstraint(Sketcher.Constraint("Horizontal", 23))
sketch4.addConstraint(Sketcher.Constraint("Vertical", 24))
sketch4.addConstraint(Sketcher.Constraint("Horizontal", 25))
sketch4.addConstraint(Sketcher.Constraint("Vertical", 26))
sketch4.addConstraint(Sketcher.Constraint("Horizontal", 27))
sketch4.addConstraint(Sketcher.Constraint("Vertical", 28))
sketch4.addConstraint(Sketcher.Constraint("Horizontal", 29))
sketch4.addConstraint(Sketcher.Constraint("Vertical", 30))
sketch4.addConstraint(Sketcher.Constraint("Horizontal", 31))
sketch4.addConstraint(Sketcher.Constraint("Vertical", 32))
sketch4.addConstraint(Sketcher.Constraint("Horizontal", 33))
sketch4.addConstraint(Sketcher.Constraint("Vertical", 34))
sketch4.addConstraint(Sketcher.Constraint("Horizontal", 35))
sketch4.addConstraint(Sketcher.Constraint("Vertical", 36))
sketch4.addConstraint(Sketcher.Constraint("Horizontal", 37))
sketch4.addConstraint(Sketcher.Constraint("Vertical", 38))
sketch4.addConstraint(Sketcher.Constraint("Horizontal", 39))
sketch4.addConstraint(Sketcher.Constraint("Vertical", 40))
sketch4.addConstraint(Sketcher.Constraint("Horizontal", 41))
sketch4.addConstraint(Sketcher.Constraint("Vertical", 42))
sketch4.addConstraint(Sketcher.Constraint("Horizontal", 43))
sketch4.addConstraint(Sketcher.Constraint("Vertical", 44))
sketch4.addConstraint(Sketcher.Constraint("Horizontal", 45))
sketch4.addConstraint(Sketcher.Constraint("Vertical", 46))
sketch4.addConstraint(Sketcher.Constraint("Horizontal", 47))
sketch4.addConstraint(Sketcher.Constraint("Vertical", 48))
sketch4.addConstraint(Sketcher.Constraint("Horizontal", 49))
sketch4.addConstraint(Sketcher.Constraint("Vertical", 50))
sketch4.addConstraint(Sketcher.Constraint("Horizontal", 51))
sketch4.addConstraint(Sketcher.Constraint("Vertical", 52))
sketch4.addConstraint(Sketcher.Constraint("Horizontal", 53))
sketch4.addConstraint(Sketcher.Constraint("Vertical", 54))
sketch4.addConstraint(Sketcher.Constraint("Horizontal", 55))
sketch4.addConstraint(Sketcher.Constraint("Vertical", 56))
sketch4.addConstraint(Sketcher.Constraint("Horizontal", 57))
sketch4.addConstraint(Sketcher.Constraint("Vertical", 58))
sketch4.addConstraint(Sketcher.Constraint("Horizontal", 59))
sketch4.addConstraint(Sketcher.Constraint("Vertical", 60))
sketch4.addConstraint(Sketcher.Constraint("Horizontal", 61))
sketch4.addConstraint(Sketcher.Constraint("Vertical", 62))
sketch4.addConstraint(Sketcher.Constraint("Horizontal", 63))
sketch4.addConstraint(Sketcher.Constraint("Symmetric", 30, 2, 32, 2, -1, 1))
sketch4.addConstraint(Sketcher.Constraint("Symmetric", 28, 2, 34, 2, -1, 1))
sketch4.addConstraint(Sketcher.Constraint("Symmetric", 26, 2, 36, 2, -1, 1))
sketch4.addConstraint(Sketcher.Constraint("Symmetric", 24, 2, 38, 2, -1, 1))
sketch4.addConstraint(Sketcher.Constraint("Symmetric", 22, 2, 40, 2, -1, 1))
sketch4.addConstraint(Sketcher.Constraint("Symmetric", 20, 2, 42, 2, -1, 1))
sketch4.addConstraint(Sketcher.Constraint("Symmetric", 18, 2, 44, 2, -1, 1))
sketch4.addConstraint(Sketcher.Constraint("Symmetric", 16, 2, 46, 2, -1, 1))
sketch4.addConstraint(Sketcher.Constraint("Symmetric", 14, 2, 48, 2, -1, 1))
sketch4.addConstraint(Sketcher.Constraint("Symmetric", 12, 2, 50, 2, -1, 1))
sketch4.addConstraint(Sketcher.Constraint("Symmetric", 10, 2, 52, 2, -1, 1))
sketch4.addConstraint(Sketcher.Constraint("Symmetric", 8, 2, 54, 2, -1, 1))
sketch4.addConstraint(Sketcher.Constraint("Symmetric", 6, 2, 56, 2, -1, 1))
sketch4.addConstraint(Sketcher.Constraint("Symmetric", 4, 2, 58, 2, -1, 1))
sketch4.addConstraint(Sketcher.Constraint("Symmetric", 2, 2, 60, 2, -1, 1))
sketch4.addConstraint(Sketcher.Constraint("Symmetric", 0, 2, 62, 2, -1, 1))
sketch4.addConstraint(Sketcher.Constraint("Vertical", 3, 2, 4, 2))
sketch4.addConstraint(Sketcher.Constraint("Vertical", 2, 2, 5, 2))
sketch4.addConstraint(Sketcher.Constraint("Vertical", 7, 2, 8, 2))
sketch4.addConstraint(Sketcher.Constraint("Vertical", 6, 2, 9, 2))
sketch4.addConstraint(Sketcher.Constraint("Vertical", 11, 2, 12, 2))
sketch4.addConstraint(Sketcher.Constraint("Vertical", 10, 2, 13, 2))
sketch4.addConstraint(Sketcher.Constraint("Vertical", 15, 2, 16, 2))
sketch4.addConstraint(Sketcher.Constraint("Vertical", 14, 2, 17, 2))
sketch4.addConstraint(Sketcher.Constraint("Vertical", 19, 2, 20, 2))
sketch4.addConstraint(Sketcher.Constraint("Vertical", 18, 2, 21, 2))
sketch4.addConstraint(Sketcher.Constraint("Vertical", 23, 2, 24, 2))
sketch4.addConstraint(Sketcher.Constraint("Vertical", 22, 2, 25, 2))
sketch4.addConstraint(Sketcher.Constraint("Vertical", 27, 2, 28, 2))
sketch4.addConstraint(Sketcher.Constraint("Vertical", 26, 2, 29, 2))
sketch4.addConstraint(Sketcher.Constraint("Vertical", 31, 2, 32, 2))
sketch4.addConstraint(Sketcher.Constraint("Equal", 2, 4))
sketch4.addConstraint(Sketcher.Constraint("Equal", 6, 8))
sketch4.addConstraint(Sketcher.Constraint("Equal", 10, 12))
sketch4.addConstraint(Sketcher.Constraint("Equal", 14, 16))
sketch4.addConstraint(Sketcher.Constraint("Equal", 18, 20))
sketch4.addConstraint(Sketcher.Constraint("Equal", 22, 24))
sketch4.addConstraint(Sketcher.Constraint("Equal", 26, 28))
sketch4.addConstraint(Sketcher.Constraint("DistanceX", 1, 1, 1, 2, Q("1.1 in")))
sketch4.addConstraint(Sketcher.Constraint("DistanceY", 0, 2, 0, 1, Q("1.6778 mm")))
sketch4.addConstraint(Sketcher.Constraint("DistanceY", -1, 1, 0, 2, Q("59.352111 mm")))
sketch4.addConstraint(Sketcher.Constraint("DistanceY", -1, 1, 4, 2, Q("51.324311 mm")))
sketch4.addConstraint(Sketcher.Constraint("DistanceY", -1, 1, 8, 2, Q("43.296511 mm")))
sketch4.addConstraint(Sketcher.Constraint("DistanceY", -1, 1, 12, 2, Q("35.268711 mm")))
sketch4.addConstraint(Sketcher.Constraint("DistanceY", -1, 1, 16, 2, Q("27.240911 mm")))
sketch4.addConstraint(Sketcher.Constraint("DistanceY", -1, 1, 20, 2, Q("19.213111 mm")))
sketch4.addConstraint(Sketcher.Constraint("DistanceY", -1, 1, 24, 2, Q("11.185311 mm")))
sketch4.addConstraint(Sketcher.Constraint("DistanceY", -1, 1, 28, 2, Q("3.157511 mm")))
pocket3 = doc.addObject("PartDesign::Pocket", "Pocket002")
body.addObject(pocket3)
pocket3.Profile = sketch4
pocket3.Length = Q("0.11 in")

doc.recompute()
